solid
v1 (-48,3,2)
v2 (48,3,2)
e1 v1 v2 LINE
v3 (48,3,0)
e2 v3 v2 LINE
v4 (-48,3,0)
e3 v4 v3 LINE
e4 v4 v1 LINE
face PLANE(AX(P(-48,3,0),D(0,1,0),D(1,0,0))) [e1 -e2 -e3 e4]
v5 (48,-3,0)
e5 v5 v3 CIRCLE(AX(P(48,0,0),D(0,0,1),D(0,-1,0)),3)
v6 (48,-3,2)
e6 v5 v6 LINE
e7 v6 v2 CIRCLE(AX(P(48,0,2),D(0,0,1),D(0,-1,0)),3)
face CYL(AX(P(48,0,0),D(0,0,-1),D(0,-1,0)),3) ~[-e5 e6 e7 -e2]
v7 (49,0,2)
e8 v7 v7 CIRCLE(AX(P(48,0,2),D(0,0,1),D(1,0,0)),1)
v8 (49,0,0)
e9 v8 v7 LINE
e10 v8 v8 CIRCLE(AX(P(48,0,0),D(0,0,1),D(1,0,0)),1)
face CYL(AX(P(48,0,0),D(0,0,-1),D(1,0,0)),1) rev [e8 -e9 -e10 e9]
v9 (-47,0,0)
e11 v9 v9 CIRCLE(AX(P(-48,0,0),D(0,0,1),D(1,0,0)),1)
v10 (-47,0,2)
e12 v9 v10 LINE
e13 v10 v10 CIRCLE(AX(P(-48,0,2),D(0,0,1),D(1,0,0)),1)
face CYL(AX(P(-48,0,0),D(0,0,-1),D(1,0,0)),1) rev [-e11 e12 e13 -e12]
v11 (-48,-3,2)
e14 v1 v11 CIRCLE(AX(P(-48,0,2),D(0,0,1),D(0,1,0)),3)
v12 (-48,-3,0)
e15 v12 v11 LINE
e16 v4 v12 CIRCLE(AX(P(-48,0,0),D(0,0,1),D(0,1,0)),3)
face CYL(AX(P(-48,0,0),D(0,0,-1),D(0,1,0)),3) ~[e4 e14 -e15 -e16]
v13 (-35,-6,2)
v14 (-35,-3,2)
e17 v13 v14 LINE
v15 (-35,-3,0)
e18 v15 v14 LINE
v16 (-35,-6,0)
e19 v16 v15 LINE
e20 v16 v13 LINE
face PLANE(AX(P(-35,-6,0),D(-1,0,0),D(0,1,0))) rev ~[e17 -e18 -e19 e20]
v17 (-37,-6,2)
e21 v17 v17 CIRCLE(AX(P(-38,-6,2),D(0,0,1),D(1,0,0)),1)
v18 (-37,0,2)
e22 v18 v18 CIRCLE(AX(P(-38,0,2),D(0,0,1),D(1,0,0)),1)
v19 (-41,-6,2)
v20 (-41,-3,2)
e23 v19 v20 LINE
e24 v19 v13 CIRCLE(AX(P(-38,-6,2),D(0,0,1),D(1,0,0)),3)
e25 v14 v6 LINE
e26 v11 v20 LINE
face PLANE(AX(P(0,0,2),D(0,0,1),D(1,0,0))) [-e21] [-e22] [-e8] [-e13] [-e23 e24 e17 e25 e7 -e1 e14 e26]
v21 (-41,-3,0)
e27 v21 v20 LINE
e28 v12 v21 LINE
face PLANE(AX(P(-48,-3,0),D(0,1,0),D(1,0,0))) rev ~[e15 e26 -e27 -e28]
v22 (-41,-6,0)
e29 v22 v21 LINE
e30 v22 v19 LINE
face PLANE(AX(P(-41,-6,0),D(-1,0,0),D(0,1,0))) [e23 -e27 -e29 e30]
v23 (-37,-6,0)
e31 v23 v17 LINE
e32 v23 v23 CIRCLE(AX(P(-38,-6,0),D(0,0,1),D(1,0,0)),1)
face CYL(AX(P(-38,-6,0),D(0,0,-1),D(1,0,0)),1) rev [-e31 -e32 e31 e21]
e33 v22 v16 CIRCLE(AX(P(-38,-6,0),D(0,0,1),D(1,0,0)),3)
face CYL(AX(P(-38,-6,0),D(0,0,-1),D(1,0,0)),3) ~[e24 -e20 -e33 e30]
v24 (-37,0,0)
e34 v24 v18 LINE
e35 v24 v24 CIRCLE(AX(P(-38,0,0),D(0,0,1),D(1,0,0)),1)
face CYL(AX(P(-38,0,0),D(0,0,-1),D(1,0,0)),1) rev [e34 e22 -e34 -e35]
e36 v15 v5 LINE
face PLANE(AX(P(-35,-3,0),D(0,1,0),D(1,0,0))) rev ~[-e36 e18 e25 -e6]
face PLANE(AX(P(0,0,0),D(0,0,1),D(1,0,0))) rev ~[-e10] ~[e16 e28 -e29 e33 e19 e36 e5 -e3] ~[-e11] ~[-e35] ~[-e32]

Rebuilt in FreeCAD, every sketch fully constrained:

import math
import FreeCAD as App
import Part
import Sketcher

V = App.Vector
Q = App.Units.Quantity

doc = App.newDocument("Part")
body = doc.addObject("PartDesign::Body", "Body")

sketch1 = body.newObject("Sketcher::SketchObject", "Sketch")
sketch1.AttachmentSupport = (doc.getObject("XY_Plane"), [""])
sketch1.MapMode = "FlatFace"
sketch1.addGeometry(Part.LineSegment(V(48, 3, 0), V(-48, 3, 0)), False)
sketch1.addGeometry(Part.ArcOfCircle(Part.Circle(V(-48, 0, 0), V(0, 0, 1), 3), math.radians(90), math.radians(270)), False)
sketch1.addGeometry(Part.LineSegment(V(-48, -3, 0), V(-41, -3, 0)), False)
sketch1.addGeometry(Part.LineSegment(V(-41, -3, 0), V(-41, -6, 0)), False)
sketch1.addGeometry(Part.ArcOfCircle(Part.Circle(V(-38, -6, 0), V(0, 0, 1), 3), math.radians(180), math.radians(360)), False)
sketch1.addGeometry(Part.LineSegment(V(-35, -6, 0), V(-35, -3, 0)), False)
sketch1.addGeometry(Part.LineSegment(V(-35, -3, 0), V(48, -3, 0)), False)
sketch1.addGeometry(Part.ArcOfCircle(Part.Circle(V(48, 0, 0), V(0, 0, 1), 3), math.radians(-90), math.radians(90)), False)
sketch1.addGeometry(Part.Circle(V(-48, 0, 0), V(0, 0, 1), 1), False)
sketch1.addGeometry(Part.Circle(V(-38, 0, 0), V(0, 0, 1), 1), False)
sketch1.addGeometry(Part.Circle(V(48, 0, 0), V(0, 0, 1), 1), False)
sketch1.addGeometry(Part.Circle(V(-38, -6, 0), V(0, 0, 1), 1), False)
sketch1.addConstraint(Sketcher.Constraint("Tangent", 0, 2, 1, 1))
sketch1.addConstraint(Sketcher.Constraint("Tangent", 1, 2, 2, 1))
sketch1.addConstraint(Sketcher.Constraint("Coincident", 2, 2, 3, 1))
sketch1.addConstraint(Sketcher.Constraint("Tangent", 3, 2, 4, 1))
sketch1.addConstraint(Sketcher.Constraint("Tangent", 4, 2, 5, 1))
sketch1.addConstraint(Sketcher.Constraint("Coincident", 5, 2, 6, 1))
sketch1.addConstraint(Sketcher.Constraint("Tangent", 6, 2, 7, 1))
sketch1.addConstraint(Sketcher.Constraint("Tangent", 7, 2, 0, 1))
sketch1.addConstraint(Sketcher.Constraint("Horizontal", 0))
sketch1.addConstraint(Sketcher.Constraint("Horizontal", 2))
sketch1.addConstraint(Sketcher.Constraint("Vertical", 3))
sketch1.addConstraint(Sketcher.Constraint("Vertical", 5))
sketch1.addConstraint(Sketcher.Constraint("Horizontal", 6))
sketch1.addConstraint(Sketcher.Constraint("Coincident", 8, 3, 1, 3))
sketch1.addConstraint(Sketcher.Constraint("Coincident", 10, 3, 7, 3))
sketch1.addConstraint(Sketcher.Constraint("Coincident", 11, 3, 4, 3))
sketch1.addConstraint(Sketcher.Constraint("Equal", 1, 4))
sketch1.addConstraint(Sketcher.Constraint("Equal", 4, 7))
sketch1.addConstraint(Sketcher.Constraint("Equal", 8, 9))
sketch1.addConstraint(Sketcher.Constraint("Equal", 9, 10))
sketch1.addConstraint(Sketcher.Constraint("Equal", 10, 11))
sketch1.addConstraint(Sketcher.Constraint("Symmetric", 1, 3, 7, 3, -1, 1))
sketch1.addConstraint(Sketcher.Constraint("PointOnObject", 9, 3, -1))
sketch1.addConstraint(Sketcher.Constraint("Vertical", 4, 3, 9, 3))
sketch1.addConstraint(Sketcher.Constraint("Diameter", 8, Q("2 mm")))
sketch1.addConstraint(Sketcher.Constraint("DistanceX", 1, 3, -1, 1, Q("48 mm")))
sketch1.addConstraint(Sketcher.Constraint("Radius", 1, Q("3 mm")))
sketch1.addConstraint(Sketcher.Constraint("DistanceX", 1, 3, 4, 3, Q("10 mm")))
sketch1.addConstraint(Sketcher.Constraint("DistanceY", 3, 2, 3, 1, Q("3 mm")))
pad1 = body.newObject("PartDesign::Pad", "Pad")
pad1.Profile = sketch1
pad1.Length = 2

doc.recompute()
